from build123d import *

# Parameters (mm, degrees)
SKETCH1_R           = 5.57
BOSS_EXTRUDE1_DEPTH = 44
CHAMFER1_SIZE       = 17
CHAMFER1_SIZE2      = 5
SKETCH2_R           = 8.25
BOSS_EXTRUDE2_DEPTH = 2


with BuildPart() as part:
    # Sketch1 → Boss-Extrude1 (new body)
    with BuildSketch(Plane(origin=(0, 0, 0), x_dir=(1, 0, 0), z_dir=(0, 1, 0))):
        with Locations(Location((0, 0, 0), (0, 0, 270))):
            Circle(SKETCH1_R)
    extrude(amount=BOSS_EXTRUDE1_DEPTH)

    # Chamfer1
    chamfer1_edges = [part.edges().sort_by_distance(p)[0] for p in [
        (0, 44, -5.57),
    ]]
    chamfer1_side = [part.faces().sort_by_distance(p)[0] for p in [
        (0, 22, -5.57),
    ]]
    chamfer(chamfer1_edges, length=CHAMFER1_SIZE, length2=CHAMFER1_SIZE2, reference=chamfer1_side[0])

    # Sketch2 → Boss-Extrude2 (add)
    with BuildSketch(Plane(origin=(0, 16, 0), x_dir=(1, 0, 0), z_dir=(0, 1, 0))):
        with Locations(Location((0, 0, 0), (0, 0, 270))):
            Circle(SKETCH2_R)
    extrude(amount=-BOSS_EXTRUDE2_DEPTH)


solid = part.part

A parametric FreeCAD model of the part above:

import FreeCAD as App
import Part
import Sketcher
Q = App.Units.Quantity


def edges_at(feature, points):
    """Names of the edges that pass closest to the given points."""
    edges = feature.Shape.Edges
    near = lambda p: min(range(len(edges)), key=lambda i: edges[i].distToShape(Part.Vertex(*p))[0])
    return sorted({f"Edge{near(p) + 1}" for p in points})

doc = App.newDocument("Part")
body = doc.addObject("PartDesign::Body", "Body")

sketch1 = body.newObject("Sketcher::SketchObject", "Sketch")
sketch1.AttachmentSupport = (doc.getObject("XZ_Plane"), [""])
sketch1.MapMode = "FlatFace"
sketch1.addGeometry(Part.Circle(App.Vector(0, 0, 0), App.Vector(0, 0, 1), 6), False)
sketch1.addConstraint(Sketcher.Constraint("Coincident", 0, 3, -1, 1))
sketch1.addConstraint(Sketcher.Constraint("Diameter", 0, Q("11.14 mm")))
pad1 = body.newObject("PartDesign::Pad", "Pad")
pad1.Profile = sketch1
pad1.Length = 44
pad1.Reversed = True
doc.recompute()

chamfer = body.newObject("PartDesign::Chamfer", "Chamfer")
chamfer.Base = (pad1, edges_at(pad1, [(0, 44, -5.57)]))
chamfer.ChamferType = "Two distances"
chamfer.Size = 17
chamfer.Size2 = 5

sketch2 = body.newObject("Sketcher::SketchObject", "Sketch001")
sketch2.AttachmentSupport = (doc.getObject("XZ_Plane"), [""])
sketch2.MapMode = "FlatFace"
sketch2.AttachmentOffset = App.Placement(App.Vector(0, 0, -16), App.Rotation())
sketch2.addGeometry(Part.Circle(App.Vector(0, 0, 0), App.Vector(0, 0, 1), 8), False)
sketch2.addConstraint(Sketcher.Constraint("Coincident", 0, 3, -1, 1))
sketch2.addConstraint(Sketcher.Constraint("Diameter", 0, Q("16.5 mm")))
pad2 = body.newObject("PartDesign::Pad", "Pad001")
pad2.Profile = sketch2
pad2.Length = 2

doc.recompute()
